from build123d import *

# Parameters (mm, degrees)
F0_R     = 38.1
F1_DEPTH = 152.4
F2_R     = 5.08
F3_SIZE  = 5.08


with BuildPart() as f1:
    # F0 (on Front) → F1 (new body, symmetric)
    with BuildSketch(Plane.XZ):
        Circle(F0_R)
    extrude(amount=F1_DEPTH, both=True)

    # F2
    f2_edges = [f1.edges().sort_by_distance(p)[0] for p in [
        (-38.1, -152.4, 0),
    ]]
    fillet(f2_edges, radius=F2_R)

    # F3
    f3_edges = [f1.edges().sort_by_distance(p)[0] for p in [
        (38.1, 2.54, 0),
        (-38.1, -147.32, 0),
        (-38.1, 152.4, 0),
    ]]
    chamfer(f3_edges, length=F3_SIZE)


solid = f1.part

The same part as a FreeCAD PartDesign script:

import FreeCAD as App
import Part
import Sketcher
Q = App.Units.Quantity


def edges_at(feature, points):
    """Names of the edges that pass closest to the given points."""
    edges = feature.Shape.Edges
    near = lambda p: min(range(len(edges)), key=lambda i: edges[i].distToShape(Part.Vertex(*p))[0])
    return sorted({f"Edge{near(p) + 1}" for p in points})

doc = App.newDocument("Part")
body = doc.addObject("PartDesign::Body", "Body")

sketch1 = doc.addObject("Sketcher::SketchObject", "Sketch")
body.addObject(sketch1)
sketch1.AttachmentSupport = (doc.XZ_Plane, [""])
sketch1.MapMode = "FlatFace"
sketch1.addGeometry(Part.Circle(App.Vector(0, 0, 0), App.Vector(0, 0, 1), 38), False)
sketch1.addConstraint([
    Sketcher.Constraint("Coincident", 0, 3, -1, 1),
    Sketcher.Constraint("Diameter", 0, Q("3 in")),
])
pad1 = doc.addObject("PartDesign::Pad", "Pad")
body.addObject(pad1)
pad1.Profile = sketch1
pad1.Length = Q("12 in")
pad1.Midplane = True
doc.recompute()

fillet = doc.addObject("PartDesign::Fillet", "Fillet")
body.addObject(fillet)
fillet.Base = (pad1, edges_at(pad1, [(-38.1, -152.4, 0)]))
fillet.Radius = Q("0.2 in")
doc.recompute()

chamfer = doc.addObject("PartDesign::Chamfer", "Chamfer")
body.addObject(chamfer)
chamfer.Base = (fillet, edges_at(fillet, [(38.1, 2.54, 0), (-38.1, -147.32, 0), (-38.1, 152.4, 0)]))
chamfer.Size = Q("0.2 in")

doc.recompute()
